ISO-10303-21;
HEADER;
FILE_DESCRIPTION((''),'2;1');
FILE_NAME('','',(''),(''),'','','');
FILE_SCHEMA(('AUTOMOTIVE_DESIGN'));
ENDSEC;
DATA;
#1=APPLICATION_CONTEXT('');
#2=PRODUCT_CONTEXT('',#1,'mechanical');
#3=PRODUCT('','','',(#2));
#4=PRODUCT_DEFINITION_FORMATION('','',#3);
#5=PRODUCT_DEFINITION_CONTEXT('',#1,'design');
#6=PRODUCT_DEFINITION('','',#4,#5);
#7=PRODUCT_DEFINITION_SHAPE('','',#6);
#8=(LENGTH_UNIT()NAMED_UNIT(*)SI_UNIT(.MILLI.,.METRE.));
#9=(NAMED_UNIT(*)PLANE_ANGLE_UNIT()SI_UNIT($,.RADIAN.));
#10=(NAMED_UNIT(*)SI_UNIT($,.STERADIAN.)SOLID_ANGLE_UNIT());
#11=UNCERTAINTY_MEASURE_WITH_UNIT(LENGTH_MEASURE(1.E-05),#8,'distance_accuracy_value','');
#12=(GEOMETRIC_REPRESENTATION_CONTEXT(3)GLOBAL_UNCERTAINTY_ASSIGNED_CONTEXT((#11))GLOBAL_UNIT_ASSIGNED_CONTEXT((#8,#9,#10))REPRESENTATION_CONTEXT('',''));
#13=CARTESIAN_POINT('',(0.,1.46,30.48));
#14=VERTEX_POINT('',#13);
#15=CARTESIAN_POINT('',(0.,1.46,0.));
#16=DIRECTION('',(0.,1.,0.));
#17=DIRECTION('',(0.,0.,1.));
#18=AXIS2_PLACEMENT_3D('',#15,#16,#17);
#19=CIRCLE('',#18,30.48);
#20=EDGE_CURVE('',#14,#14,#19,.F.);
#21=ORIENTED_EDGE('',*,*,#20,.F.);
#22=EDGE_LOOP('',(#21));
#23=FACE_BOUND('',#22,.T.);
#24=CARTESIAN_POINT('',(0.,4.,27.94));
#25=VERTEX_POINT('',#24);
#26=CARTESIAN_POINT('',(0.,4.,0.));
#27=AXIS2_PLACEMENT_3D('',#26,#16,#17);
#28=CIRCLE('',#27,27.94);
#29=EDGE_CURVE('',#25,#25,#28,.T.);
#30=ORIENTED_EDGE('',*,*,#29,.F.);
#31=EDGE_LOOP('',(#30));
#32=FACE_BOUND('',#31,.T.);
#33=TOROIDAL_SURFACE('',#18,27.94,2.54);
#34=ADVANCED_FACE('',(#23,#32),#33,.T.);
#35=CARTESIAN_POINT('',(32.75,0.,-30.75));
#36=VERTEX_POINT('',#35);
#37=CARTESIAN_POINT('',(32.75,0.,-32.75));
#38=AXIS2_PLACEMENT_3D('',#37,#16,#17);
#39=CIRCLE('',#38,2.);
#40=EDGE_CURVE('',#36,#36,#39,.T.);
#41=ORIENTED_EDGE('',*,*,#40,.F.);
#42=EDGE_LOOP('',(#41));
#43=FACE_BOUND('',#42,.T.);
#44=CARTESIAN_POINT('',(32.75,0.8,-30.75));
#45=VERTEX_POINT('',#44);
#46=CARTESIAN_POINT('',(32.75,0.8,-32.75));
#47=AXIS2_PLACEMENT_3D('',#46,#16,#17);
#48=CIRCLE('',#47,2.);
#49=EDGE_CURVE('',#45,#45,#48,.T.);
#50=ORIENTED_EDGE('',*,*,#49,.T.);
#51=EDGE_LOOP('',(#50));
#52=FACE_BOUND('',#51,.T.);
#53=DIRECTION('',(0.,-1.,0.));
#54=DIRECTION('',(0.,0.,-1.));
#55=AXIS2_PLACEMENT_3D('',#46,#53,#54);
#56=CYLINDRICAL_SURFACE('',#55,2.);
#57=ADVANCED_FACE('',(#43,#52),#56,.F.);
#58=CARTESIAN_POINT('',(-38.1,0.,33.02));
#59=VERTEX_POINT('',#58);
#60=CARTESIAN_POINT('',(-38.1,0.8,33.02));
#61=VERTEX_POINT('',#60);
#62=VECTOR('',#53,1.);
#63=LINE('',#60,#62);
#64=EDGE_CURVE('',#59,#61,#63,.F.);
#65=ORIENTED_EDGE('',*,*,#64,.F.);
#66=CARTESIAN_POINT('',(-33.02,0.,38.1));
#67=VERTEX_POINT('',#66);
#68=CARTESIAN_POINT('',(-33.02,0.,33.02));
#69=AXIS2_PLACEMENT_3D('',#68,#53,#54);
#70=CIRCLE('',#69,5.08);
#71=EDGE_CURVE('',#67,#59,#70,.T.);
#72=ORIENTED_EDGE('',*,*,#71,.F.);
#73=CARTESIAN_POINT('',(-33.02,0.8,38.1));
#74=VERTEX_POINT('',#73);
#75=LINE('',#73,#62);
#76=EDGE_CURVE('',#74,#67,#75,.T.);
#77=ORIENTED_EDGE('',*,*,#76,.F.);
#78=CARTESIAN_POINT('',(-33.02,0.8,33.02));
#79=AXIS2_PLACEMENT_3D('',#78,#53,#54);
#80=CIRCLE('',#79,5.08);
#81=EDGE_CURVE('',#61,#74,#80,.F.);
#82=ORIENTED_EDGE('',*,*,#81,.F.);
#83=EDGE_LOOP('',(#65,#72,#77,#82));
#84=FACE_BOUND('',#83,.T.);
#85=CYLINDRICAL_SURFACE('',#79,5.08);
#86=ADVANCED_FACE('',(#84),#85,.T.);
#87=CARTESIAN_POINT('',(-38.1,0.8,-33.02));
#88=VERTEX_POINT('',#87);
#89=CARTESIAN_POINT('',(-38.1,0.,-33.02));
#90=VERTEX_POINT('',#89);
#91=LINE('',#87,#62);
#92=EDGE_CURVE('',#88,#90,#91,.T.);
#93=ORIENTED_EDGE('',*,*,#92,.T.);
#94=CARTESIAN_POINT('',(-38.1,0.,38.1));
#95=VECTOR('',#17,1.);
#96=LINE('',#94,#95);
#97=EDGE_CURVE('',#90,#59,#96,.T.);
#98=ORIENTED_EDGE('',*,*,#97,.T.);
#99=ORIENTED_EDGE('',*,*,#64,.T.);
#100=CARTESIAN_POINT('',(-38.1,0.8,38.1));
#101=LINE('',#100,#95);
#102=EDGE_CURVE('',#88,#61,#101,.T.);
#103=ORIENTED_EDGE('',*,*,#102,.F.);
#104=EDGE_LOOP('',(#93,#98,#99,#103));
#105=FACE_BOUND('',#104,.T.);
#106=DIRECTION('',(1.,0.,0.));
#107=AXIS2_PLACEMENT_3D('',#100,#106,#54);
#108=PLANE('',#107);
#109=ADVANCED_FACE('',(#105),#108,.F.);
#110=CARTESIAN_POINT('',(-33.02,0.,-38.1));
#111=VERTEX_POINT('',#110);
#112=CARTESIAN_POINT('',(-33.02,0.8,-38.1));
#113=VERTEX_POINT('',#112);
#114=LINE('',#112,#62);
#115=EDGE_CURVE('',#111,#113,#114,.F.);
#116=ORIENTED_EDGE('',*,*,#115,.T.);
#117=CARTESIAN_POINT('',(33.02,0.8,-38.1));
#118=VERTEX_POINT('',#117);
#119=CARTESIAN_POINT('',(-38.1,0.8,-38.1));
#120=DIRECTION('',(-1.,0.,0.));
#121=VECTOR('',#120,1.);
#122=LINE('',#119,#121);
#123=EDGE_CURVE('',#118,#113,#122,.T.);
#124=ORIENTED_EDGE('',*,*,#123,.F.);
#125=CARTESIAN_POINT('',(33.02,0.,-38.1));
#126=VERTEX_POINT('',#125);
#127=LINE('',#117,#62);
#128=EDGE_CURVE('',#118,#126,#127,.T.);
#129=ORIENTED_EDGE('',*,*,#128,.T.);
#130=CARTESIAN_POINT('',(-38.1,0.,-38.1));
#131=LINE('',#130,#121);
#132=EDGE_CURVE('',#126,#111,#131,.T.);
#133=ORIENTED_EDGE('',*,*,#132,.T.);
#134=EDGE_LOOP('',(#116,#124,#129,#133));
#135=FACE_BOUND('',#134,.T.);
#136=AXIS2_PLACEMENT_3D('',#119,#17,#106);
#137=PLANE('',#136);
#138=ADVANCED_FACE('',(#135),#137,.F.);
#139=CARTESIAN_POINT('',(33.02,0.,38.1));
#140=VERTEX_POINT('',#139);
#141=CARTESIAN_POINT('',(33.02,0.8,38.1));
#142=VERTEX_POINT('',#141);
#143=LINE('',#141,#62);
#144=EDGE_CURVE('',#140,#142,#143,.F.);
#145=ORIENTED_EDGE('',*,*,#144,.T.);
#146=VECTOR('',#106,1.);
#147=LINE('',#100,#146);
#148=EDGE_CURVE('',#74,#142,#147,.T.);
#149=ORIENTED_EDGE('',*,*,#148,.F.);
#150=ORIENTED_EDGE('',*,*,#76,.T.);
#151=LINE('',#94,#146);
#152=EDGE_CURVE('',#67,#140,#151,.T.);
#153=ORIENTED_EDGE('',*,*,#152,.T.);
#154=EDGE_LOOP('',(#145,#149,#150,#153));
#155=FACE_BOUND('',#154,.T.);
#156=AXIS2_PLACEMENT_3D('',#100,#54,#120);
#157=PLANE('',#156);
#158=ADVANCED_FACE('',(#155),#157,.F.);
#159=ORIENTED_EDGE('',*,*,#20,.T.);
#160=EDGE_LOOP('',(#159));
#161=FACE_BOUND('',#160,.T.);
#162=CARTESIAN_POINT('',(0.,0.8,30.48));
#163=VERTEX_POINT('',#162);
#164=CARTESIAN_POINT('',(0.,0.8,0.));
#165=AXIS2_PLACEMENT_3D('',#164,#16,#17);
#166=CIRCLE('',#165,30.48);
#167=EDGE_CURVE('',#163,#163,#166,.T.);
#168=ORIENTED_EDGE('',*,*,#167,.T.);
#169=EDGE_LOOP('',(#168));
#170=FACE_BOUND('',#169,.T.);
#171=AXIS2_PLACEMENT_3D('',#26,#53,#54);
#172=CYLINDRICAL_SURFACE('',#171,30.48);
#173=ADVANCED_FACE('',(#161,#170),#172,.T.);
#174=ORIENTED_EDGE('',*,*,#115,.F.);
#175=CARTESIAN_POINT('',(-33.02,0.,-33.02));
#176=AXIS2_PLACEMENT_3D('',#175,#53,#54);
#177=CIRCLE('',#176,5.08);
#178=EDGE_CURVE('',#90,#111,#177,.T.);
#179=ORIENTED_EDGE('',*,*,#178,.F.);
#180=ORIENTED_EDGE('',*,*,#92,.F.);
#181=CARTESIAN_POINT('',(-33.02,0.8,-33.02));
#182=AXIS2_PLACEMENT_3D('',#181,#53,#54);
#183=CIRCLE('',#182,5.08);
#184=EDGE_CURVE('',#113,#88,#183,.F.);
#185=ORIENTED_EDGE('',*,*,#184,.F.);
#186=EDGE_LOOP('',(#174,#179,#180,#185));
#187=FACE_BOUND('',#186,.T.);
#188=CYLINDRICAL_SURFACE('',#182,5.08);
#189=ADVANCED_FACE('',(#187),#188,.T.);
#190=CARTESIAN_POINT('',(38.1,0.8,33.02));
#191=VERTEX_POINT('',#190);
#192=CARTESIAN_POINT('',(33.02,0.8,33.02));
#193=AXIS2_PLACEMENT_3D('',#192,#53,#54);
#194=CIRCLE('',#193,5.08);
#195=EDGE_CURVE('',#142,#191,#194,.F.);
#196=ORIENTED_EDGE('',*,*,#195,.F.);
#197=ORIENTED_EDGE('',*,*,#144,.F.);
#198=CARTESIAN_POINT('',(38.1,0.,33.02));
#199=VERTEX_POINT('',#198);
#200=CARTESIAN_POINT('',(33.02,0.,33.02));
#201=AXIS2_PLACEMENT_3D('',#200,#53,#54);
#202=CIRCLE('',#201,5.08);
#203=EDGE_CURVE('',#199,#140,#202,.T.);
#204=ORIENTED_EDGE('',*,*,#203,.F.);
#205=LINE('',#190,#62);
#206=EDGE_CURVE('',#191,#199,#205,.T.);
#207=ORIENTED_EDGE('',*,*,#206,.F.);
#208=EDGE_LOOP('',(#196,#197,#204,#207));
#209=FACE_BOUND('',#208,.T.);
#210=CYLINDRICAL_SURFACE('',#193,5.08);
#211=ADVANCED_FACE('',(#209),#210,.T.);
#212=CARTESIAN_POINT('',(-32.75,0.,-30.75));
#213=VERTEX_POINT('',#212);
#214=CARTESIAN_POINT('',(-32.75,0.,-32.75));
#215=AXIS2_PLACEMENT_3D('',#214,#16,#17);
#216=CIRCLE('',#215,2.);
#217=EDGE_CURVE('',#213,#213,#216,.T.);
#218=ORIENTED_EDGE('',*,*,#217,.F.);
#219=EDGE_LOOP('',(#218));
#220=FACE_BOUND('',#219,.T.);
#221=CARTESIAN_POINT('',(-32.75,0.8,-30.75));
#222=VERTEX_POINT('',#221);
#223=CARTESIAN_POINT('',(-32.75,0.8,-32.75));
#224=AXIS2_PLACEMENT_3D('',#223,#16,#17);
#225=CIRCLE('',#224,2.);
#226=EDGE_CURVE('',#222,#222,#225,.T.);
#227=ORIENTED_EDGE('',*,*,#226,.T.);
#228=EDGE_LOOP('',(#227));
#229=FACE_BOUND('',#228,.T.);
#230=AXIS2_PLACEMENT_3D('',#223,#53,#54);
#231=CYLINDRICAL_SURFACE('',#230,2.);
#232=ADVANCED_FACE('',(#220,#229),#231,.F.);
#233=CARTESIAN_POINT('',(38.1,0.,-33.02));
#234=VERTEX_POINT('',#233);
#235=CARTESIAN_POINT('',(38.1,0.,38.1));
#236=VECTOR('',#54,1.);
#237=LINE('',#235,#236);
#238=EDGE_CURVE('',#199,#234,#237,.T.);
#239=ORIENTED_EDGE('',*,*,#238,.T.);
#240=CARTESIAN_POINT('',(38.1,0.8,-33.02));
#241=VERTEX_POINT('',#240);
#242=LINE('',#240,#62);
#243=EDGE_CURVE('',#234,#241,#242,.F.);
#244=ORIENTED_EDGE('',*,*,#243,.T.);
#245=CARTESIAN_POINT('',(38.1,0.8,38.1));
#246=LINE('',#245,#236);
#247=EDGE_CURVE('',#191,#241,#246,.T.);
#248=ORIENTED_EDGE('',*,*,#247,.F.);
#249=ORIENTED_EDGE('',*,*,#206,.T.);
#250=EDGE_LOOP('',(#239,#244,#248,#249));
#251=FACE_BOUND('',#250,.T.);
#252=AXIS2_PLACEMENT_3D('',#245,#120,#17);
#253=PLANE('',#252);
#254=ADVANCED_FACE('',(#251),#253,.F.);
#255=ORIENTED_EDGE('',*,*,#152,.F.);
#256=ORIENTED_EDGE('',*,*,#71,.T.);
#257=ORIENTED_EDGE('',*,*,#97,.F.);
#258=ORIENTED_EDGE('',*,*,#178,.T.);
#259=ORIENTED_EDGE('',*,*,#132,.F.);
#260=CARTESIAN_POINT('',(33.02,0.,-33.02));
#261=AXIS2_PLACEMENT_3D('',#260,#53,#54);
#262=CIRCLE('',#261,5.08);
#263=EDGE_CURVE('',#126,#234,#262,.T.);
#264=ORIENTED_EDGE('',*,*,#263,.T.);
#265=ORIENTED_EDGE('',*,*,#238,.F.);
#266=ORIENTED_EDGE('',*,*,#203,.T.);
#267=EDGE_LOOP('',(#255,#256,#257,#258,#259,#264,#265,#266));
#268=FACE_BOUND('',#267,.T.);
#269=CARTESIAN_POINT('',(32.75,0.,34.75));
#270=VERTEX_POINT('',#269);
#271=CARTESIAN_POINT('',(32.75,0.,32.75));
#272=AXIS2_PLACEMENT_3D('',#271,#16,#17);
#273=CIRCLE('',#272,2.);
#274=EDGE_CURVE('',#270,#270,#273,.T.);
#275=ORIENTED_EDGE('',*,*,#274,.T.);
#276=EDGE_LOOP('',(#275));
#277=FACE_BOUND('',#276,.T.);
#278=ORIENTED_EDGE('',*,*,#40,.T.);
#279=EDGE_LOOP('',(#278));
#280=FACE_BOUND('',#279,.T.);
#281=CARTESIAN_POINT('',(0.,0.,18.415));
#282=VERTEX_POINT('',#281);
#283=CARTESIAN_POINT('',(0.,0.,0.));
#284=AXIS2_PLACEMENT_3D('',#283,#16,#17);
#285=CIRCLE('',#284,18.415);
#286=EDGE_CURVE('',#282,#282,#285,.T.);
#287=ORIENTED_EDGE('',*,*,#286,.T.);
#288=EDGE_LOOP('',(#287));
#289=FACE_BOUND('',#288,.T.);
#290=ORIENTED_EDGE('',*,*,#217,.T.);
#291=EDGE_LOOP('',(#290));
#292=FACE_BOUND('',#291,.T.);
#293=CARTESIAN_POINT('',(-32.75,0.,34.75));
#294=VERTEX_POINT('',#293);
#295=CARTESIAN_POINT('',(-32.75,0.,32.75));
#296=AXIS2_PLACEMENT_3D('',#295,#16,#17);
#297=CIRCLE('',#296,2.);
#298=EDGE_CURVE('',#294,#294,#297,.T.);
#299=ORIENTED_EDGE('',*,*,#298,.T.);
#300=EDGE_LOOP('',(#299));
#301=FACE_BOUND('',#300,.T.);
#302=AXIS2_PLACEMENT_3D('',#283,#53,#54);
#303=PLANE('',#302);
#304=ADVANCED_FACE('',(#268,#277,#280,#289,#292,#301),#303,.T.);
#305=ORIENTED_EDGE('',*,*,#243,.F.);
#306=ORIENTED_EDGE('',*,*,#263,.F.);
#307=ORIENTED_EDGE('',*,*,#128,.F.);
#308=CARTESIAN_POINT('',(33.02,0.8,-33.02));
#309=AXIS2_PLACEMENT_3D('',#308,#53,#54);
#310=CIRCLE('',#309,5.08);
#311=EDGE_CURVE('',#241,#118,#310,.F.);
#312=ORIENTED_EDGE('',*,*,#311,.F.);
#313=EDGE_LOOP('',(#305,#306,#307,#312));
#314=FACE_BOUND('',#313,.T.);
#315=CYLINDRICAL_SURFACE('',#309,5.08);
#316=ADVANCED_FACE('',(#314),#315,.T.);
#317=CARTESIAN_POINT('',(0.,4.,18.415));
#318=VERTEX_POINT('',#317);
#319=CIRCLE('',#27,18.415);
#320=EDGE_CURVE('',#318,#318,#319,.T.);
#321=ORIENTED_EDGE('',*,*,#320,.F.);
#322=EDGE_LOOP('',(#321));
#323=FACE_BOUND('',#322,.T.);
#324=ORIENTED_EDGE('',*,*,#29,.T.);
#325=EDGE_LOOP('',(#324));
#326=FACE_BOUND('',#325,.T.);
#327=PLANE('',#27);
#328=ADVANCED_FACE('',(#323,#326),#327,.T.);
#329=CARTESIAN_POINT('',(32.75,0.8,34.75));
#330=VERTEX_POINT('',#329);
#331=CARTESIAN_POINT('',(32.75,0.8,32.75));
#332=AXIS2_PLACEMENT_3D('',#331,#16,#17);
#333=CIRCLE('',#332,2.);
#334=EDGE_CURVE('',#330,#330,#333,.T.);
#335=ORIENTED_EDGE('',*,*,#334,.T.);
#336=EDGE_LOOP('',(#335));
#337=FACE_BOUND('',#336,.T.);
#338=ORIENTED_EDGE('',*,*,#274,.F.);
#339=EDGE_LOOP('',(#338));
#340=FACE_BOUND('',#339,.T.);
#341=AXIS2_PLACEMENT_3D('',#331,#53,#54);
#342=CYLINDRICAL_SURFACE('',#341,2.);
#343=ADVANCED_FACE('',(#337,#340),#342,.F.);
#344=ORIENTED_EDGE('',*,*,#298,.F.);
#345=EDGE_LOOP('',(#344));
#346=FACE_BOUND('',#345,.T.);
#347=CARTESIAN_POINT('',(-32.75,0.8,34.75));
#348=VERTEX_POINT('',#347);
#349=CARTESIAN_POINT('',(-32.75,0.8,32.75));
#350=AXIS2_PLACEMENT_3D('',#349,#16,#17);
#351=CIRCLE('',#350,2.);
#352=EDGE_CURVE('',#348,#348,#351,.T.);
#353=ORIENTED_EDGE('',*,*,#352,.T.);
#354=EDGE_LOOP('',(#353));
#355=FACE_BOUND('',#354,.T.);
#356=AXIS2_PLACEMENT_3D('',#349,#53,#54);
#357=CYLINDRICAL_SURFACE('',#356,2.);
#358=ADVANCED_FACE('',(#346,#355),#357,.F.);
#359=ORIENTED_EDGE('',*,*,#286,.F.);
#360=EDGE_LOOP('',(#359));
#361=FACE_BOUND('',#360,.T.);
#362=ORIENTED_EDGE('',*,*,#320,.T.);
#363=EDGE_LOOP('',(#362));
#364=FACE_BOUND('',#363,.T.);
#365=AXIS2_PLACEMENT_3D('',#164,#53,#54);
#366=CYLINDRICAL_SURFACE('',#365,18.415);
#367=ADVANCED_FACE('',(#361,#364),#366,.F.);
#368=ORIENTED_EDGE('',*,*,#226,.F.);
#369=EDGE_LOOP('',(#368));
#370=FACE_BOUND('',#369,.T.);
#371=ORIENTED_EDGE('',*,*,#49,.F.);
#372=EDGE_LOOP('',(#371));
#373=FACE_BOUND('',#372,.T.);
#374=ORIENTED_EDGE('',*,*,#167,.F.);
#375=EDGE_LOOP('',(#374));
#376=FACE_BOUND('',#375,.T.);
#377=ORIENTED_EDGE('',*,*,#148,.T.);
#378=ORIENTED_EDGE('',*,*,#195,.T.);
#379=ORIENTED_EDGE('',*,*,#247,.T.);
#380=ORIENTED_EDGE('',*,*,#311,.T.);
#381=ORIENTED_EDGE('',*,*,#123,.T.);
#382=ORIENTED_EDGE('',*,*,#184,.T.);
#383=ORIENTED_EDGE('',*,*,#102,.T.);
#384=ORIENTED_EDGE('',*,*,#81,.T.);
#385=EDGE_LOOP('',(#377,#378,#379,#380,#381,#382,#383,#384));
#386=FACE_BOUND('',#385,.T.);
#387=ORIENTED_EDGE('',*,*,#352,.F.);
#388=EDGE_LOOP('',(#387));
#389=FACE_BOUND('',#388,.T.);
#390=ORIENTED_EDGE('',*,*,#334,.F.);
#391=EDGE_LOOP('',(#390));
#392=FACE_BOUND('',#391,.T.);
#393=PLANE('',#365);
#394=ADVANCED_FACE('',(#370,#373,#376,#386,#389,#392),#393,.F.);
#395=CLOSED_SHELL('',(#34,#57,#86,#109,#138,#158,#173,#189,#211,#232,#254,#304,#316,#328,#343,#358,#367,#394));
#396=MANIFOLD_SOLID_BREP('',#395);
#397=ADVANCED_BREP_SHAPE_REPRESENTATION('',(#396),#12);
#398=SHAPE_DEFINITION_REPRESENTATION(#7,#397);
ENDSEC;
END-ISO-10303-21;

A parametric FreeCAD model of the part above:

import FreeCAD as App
import Part
import Sketcher
Q = App.Units.Quantity


def edges_at(feature, points):
    """Names of the edges that pass closest to the given points."""
    edges = feature.Shape.Edges
    near = lambda p: min(range(len(edges)), key=lambda i: edges[i].distToShape(Part.Vertex(*p))[0])
    return sorted({f"Edge{near(p) + 1}" for p in points})

doc = App.newDocument("Part")
body = doc.addObject("PartDesign::Body", "Body")

sketch1 = body.newObject("Sketcher::SketchObject", "Sketch")
sketch1.AttachmentSupport = (doc.getObject("XZ_Plane"), [""])
sketch1.MapMode = "FlatFace"
sketch1.addGeometry([
    Part.LineSegment(App.Vector(-38.1, -38.1, 0), App.Vector(-38.1, 38.1, 0)),
    Part.LineSegment(App.Vector(-38.1, 38.1, 0), App.Vector(38.1, 38.1, 0)),
    Part.LineSegment(App.Vector(38.1, 38.1, 0), App.Vector(38.1, -38.1, 0)),
    Part.LineSegment(App.Vector(38.1, -38.1, 0), App.Vector(-38.1, -38.1, 0)),
    Part.Circle(App.Vector(-32.8, 32.8, 0), App.Vector(0, 0, 1), 2),
    Part.Circle(App.Vector(32.8, 32.8, 0), App.Vector(0, 0, 1), 2),
    Part.Circle(App.Vector(-32.8, -32.8, 0), App.Vector(0, 0, 1), 2),
    Part.Circle(App.Vector(0, 0, 0), App.Vector(0, 0, 1), 18.4),
    Part.Circle(App.Vector(32.8, -32.8, 0), App.Vector(0, 0, 1), 2),
], False)
sketch1.addConstraint([
    Sketcher.Constraint("Coincident", 0, 2, 1, 1),
    Sketcher.Constraint("Coincident", 1, 2, 2, 1),
    Sketcher.Constraint("Coincident", 2, 2, 3, 1),
    Sketcher.Constraint("Coincident", 3, 2, 0, 1),
    Sketcher.Constraint("Vertical", 0),
    Sketcher.Constraint("Horizontal", 1),
    Sketcher.Constraint("Vertical", 2),
    Sketcher.Constraint("Horizontal", 3),
    Sketcher.Constraint("Coincident", 7, 3, -1, 1),
    Sketcher.Constraint("Equal", 4, 5),
    Sketcher.Constraint("Equal", 5, 6),
    Sketcher.Constraint("Equal", 6, 8),
    Sketcher.Constraint("Symmetric", 5, 3, 6, 3, -1, 1),
    Sketcher.Constraint("Symmetric", 4, 3, 8, 3, -1, 1),
    Sketcher.Constraint("Symmetric", 0, 2, 2, 2, -1, 1),
    Sketcher.Constraint("Symmetric", 4, 3, 5, 3, -2),
    Sketcher.Constraint("Equal", 3, 0),
    Sketcher.Constraint("Diameter", 7, Q("1.45 in")),
    Sketcher.Constraint("DistanceX", 1, 1, 1, 2, Q("3 in")),
    Sketcher.Constraint("Diameter", 4, 4.0),
    Sketcher.Constraint("DistanceX", 4, 3, -1, 1, 32.75),
    Sketcher.Constraint("DistanceY", -1, 1, 4, 3, 32.75),
])
pad1 = body.newObject("PartDesign::Pad", "Pad")
pad1.Profile = sketch1
pad1.Length = 0.8
pad1.Reversed = True
doc.recompute()

fillet = body.newObject("PartDesign::Fillet", "Fillet")
fillet.Base = (pad1, edges_at(pad1, [
    (38.1, 0.4, 38.1),
    (-38.1, 0.4, 38.1),
    (-38.1, 0.4, -38.1),
    (38.1, 0.4, -38.1),
]))
fillet.Radius = Q("0.2 in")

sketch2 = body.newObject("Sketcher::SketchObject", "Sketch001")
sketch2.AttachmentSupport = (doc.getObject("XZ_Plane"), [""])
sketch2.MapMode = "FlatFace"
sketch2.AttachmentOffset = App.Placement(App.Vector(0, 0, -0.8), App.Rotation())
sketch2.addGeometry([
    Part.Circle(App.Vector(0, 0, 0), App.Vector(0, 0, 1), 30),
    Part.Circle(App.Vector(0, 0, 0), App.Vector(0, 0, 1), 18),
], False)
sketch2.addConstraint([
    Sketcher.Constraint("Coincident", 0, 3, -1, 1),
    Sketcher.Constraint("Coincident", 1, 3, -1, 1),
    Sketcher.Constraint("Diameter", 0, Q("2.4 in")),
    Sketcher.Constraint("Diameter", 1, Q("1.45 in")),
])
pad2 = body.newObject("PartDesign::Pad", "Pad001")
pad2.Profile = sketch2
pad2.Length = 3.2
pad2.Reversed = True
doc.recompute()

fillet2 = body.newObject("PartDesign::Fillet", "Fillet001")
fillet2.Base = (pad2, edges_at(pad2, [(-30.48, 4, 0)]))
fillet2.Radius = Q("0.1 in")

doc.recompute()
